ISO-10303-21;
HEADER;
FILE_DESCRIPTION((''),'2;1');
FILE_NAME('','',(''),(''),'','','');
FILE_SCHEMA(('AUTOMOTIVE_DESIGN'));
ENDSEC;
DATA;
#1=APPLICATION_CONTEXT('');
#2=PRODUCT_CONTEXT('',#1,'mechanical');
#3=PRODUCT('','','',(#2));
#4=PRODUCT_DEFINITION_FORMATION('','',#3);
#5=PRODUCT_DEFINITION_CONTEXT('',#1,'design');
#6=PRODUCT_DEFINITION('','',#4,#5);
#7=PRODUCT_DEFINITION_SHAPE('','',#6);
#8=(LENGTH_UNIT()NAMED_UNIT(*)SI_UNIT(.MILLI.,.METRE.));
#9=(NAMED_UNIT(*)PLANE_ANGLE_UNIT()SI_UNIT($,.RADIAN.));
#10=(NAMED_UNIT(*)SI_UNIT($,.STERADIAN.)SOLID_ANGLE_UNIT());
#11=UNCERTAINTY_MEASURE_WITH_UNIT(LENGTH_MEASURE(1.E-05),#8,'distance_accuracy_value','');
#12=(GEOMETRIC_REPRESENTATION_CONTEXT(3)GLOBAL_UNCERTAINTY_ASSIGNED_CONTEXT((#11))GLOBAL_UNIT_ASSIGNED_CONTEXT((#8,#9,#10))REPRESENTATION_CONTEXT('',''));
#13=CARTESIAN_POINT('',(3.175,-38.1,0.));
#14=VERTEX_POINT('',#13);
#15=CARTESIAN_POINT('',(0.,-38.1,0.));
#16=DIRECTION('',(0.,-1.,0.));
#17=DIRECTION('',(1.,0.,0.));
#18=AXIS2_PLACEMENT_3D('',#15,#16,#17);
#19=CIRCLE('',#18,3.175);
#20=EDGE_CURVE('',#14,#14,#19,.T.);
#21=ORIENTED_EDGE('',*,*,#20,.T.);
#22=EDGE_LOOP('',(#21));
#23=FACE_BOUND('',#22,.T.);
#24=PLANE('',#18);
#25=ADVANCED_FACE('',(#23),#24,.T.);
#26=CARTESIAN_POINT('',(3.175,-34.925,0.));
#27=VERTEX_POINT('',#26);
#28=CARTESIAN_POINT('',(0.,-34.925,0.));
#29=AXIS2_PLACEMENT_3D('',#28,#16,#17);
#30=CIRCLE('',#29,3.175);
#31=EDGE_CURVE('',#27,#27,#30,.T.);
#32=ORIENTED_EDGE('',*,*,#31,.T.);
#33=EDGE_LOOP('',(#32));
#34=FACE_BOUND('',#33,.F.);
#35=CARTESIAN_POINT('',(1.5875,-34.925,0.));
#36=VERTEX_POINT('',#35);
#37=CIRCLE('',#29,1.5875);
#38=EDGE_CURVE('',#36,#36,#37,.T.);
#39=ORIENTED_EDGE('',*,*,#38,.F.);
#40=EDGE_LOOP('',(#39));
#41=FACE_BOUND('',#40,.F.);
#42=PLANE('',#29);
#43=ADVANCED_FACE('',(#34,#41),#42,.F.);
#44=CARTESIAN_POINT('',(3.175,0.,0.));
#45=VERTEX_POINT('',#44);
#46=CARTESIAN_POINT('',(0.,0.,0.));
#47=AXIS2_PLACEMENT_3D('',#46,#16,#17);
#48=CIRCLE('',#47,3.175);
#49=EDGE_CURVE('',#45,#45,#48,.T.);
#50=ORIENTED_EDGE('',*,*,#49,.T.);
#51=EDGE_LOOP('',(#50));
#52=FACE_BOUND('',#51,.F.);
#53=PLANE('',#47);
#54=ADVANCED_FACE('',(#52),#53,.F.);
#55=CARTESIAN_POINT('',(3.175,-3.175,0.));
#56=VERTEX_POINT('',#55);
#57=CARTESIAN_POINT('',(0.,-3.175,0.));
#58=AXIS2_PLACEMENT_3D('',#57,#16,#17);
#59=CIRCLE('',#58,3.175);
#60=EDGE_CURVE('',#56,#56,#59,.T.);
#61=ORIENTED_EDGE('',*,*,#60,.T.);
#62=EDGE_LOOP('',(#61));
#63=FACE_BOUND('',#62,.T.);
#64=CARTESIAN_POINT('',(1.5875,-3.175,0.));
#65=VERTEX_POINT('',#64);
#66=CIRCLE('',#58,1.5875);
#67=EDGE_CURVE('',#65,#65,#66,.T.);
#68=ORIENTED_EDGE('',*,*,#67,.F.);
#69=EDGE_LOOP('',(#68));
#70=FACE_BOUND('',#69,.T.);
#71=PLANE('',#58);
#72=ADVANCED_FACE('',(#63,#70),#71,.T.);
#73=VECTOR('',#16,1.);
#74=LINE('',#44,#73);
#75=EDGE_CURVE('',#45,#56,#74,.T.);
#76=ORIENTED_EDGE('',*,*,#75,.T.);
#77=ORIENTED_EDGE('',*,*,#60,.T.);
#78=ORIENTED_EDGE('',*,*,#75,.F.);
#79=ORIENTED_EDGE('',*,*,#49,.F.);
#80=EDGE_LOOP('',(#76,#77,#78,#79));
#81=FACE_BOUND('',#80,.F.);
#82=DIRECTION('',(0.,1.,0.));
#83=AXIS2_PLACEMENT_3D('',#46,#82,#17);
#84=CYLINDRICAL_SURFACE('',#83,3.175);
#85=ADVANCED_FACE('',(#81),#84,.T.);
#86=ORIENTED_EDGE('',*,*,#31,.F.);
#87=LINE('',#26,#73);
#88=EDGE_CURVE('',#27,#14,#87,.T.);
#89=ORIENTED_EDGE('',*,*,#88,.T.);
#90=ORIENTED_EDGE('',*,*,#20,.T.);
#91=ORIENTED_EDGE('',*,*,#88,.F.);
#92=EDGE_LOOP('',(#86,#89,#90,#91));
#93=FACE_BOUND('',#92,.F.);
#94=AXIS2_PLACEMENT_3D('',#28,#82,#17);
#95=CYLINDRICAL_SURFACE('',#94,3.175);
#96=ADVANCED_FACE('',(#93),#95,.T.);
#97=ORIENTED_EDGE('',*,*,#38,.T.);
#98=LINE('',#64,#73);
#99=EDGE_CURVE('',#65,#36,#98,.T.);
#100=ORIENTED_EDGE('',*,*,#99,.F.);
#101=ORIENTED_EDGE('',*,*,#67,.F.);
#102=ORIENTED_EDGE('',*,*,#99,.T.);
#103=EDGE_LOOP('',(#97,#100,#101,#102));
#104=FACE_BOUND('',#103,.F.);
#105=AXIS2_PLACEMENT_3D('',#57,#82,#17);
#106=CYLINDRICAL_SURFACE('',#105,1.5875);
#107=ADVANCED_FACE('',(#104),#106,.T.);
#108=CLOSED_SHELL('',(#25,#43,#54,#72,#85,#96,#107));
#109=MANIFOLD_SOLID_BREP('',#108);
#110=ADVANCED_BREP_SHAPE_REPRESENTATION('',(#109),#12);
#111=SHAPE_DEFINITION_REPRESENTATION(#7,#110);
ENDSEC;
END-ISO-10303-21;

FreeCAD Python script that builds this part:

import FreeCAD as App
import Part
import Sketcher
Q = App.Units.Quantity

doc = App.newDocument("Part")
body = doc.addObject("PartDesign::Body", "Body")

# Sketch on XZ plane
sketch1 = doc.addObject("Sketcher::SketchObject", "Sketch")
body.addObject(sketch1)
sketch1.AttachmentSupport = (doc.XZ_Plane, [""])
sketch1.MapMode = "FlatFace"
sketch1.addGeometry(Part.Circle(App.Vector(0, 0, 0), App.Vector(0, 0, 1), 3.175), False)
sketch1.addConstraint(Sketcher.Constraint("Coincident", 0, 3, -1, 1))
sketch1.addConstraint(Sketcher.Constraint("Diameter", 0, Q("0.25 in")))
pad1 = doc.addObject("PartDesign::Pad", "Pad")
body.addObject(pad1)
pad1.Profile = sketch1
pad1.Length = Q("0.125 in")

# Sketch on XZ plane
sketch2 = doc.addObject("Sketcher::SketchObject", "Sketch001")
body.addObject(sketch2)
sketch2.AttachmentSupport = (doc.XZ_Plane, [""])
sketch2.MapMode = "FlatFace"
sketch2.AttachmentOffset = App.Placement(App.Vector(0, 0, 0.125 * 25.4), App.Rotation())
sketch2.addGeometry(Part.Circle(App.Vector(0, 0, 0), App.Vector(0, 0, 1), 1.5875), False)
sketch2.addConstraint(Sketcher.Constraint("Coincident", 0, 3, -1, 1))
sketch2.addConstraint(Sketcher.Constraint("Diameter", 0, Q("0.125 in")))
pad2 = doc.addObject("PartDesign::Pad", "Pad001")
body.addObject(pad2)
pad2.Profile = sketch2
pad2.Length = Q("1.25 in")

# Sketch on XZ plane
sketch3 = doc.addObject("Sketcher::SketchObject", "Sketch002")
body.addObject(sketch3)
sketch3.AttachmentSupport = (doc.XZ_Plane, [""])
sketch3.MapMode = "FlatFace"
sketch3.AttachmentOffset = App.Placement(App.Vector(0, 0, 1.375 * 25.4), App.Rotation())
sketch3.addGeometry(Part.Circle(App.Vector(0, 0, 0), App.Vector(0, 0, 1), 3.175), False)
sketch3.addConstraint(Sketcher.Constraint("Coincident", 0, 3, -1, 1))
sketch3.addConstraint(Sketcher.Constraint("Diameter", 0, Q("0.25 in")))
pad3 = doc.addObject("PartDesign::Pad", "Pad002")
body.addObject(pad3)
pad3.Profile = sketch3
pad3.Length = Q("0.125 in")

doc.recompute()
